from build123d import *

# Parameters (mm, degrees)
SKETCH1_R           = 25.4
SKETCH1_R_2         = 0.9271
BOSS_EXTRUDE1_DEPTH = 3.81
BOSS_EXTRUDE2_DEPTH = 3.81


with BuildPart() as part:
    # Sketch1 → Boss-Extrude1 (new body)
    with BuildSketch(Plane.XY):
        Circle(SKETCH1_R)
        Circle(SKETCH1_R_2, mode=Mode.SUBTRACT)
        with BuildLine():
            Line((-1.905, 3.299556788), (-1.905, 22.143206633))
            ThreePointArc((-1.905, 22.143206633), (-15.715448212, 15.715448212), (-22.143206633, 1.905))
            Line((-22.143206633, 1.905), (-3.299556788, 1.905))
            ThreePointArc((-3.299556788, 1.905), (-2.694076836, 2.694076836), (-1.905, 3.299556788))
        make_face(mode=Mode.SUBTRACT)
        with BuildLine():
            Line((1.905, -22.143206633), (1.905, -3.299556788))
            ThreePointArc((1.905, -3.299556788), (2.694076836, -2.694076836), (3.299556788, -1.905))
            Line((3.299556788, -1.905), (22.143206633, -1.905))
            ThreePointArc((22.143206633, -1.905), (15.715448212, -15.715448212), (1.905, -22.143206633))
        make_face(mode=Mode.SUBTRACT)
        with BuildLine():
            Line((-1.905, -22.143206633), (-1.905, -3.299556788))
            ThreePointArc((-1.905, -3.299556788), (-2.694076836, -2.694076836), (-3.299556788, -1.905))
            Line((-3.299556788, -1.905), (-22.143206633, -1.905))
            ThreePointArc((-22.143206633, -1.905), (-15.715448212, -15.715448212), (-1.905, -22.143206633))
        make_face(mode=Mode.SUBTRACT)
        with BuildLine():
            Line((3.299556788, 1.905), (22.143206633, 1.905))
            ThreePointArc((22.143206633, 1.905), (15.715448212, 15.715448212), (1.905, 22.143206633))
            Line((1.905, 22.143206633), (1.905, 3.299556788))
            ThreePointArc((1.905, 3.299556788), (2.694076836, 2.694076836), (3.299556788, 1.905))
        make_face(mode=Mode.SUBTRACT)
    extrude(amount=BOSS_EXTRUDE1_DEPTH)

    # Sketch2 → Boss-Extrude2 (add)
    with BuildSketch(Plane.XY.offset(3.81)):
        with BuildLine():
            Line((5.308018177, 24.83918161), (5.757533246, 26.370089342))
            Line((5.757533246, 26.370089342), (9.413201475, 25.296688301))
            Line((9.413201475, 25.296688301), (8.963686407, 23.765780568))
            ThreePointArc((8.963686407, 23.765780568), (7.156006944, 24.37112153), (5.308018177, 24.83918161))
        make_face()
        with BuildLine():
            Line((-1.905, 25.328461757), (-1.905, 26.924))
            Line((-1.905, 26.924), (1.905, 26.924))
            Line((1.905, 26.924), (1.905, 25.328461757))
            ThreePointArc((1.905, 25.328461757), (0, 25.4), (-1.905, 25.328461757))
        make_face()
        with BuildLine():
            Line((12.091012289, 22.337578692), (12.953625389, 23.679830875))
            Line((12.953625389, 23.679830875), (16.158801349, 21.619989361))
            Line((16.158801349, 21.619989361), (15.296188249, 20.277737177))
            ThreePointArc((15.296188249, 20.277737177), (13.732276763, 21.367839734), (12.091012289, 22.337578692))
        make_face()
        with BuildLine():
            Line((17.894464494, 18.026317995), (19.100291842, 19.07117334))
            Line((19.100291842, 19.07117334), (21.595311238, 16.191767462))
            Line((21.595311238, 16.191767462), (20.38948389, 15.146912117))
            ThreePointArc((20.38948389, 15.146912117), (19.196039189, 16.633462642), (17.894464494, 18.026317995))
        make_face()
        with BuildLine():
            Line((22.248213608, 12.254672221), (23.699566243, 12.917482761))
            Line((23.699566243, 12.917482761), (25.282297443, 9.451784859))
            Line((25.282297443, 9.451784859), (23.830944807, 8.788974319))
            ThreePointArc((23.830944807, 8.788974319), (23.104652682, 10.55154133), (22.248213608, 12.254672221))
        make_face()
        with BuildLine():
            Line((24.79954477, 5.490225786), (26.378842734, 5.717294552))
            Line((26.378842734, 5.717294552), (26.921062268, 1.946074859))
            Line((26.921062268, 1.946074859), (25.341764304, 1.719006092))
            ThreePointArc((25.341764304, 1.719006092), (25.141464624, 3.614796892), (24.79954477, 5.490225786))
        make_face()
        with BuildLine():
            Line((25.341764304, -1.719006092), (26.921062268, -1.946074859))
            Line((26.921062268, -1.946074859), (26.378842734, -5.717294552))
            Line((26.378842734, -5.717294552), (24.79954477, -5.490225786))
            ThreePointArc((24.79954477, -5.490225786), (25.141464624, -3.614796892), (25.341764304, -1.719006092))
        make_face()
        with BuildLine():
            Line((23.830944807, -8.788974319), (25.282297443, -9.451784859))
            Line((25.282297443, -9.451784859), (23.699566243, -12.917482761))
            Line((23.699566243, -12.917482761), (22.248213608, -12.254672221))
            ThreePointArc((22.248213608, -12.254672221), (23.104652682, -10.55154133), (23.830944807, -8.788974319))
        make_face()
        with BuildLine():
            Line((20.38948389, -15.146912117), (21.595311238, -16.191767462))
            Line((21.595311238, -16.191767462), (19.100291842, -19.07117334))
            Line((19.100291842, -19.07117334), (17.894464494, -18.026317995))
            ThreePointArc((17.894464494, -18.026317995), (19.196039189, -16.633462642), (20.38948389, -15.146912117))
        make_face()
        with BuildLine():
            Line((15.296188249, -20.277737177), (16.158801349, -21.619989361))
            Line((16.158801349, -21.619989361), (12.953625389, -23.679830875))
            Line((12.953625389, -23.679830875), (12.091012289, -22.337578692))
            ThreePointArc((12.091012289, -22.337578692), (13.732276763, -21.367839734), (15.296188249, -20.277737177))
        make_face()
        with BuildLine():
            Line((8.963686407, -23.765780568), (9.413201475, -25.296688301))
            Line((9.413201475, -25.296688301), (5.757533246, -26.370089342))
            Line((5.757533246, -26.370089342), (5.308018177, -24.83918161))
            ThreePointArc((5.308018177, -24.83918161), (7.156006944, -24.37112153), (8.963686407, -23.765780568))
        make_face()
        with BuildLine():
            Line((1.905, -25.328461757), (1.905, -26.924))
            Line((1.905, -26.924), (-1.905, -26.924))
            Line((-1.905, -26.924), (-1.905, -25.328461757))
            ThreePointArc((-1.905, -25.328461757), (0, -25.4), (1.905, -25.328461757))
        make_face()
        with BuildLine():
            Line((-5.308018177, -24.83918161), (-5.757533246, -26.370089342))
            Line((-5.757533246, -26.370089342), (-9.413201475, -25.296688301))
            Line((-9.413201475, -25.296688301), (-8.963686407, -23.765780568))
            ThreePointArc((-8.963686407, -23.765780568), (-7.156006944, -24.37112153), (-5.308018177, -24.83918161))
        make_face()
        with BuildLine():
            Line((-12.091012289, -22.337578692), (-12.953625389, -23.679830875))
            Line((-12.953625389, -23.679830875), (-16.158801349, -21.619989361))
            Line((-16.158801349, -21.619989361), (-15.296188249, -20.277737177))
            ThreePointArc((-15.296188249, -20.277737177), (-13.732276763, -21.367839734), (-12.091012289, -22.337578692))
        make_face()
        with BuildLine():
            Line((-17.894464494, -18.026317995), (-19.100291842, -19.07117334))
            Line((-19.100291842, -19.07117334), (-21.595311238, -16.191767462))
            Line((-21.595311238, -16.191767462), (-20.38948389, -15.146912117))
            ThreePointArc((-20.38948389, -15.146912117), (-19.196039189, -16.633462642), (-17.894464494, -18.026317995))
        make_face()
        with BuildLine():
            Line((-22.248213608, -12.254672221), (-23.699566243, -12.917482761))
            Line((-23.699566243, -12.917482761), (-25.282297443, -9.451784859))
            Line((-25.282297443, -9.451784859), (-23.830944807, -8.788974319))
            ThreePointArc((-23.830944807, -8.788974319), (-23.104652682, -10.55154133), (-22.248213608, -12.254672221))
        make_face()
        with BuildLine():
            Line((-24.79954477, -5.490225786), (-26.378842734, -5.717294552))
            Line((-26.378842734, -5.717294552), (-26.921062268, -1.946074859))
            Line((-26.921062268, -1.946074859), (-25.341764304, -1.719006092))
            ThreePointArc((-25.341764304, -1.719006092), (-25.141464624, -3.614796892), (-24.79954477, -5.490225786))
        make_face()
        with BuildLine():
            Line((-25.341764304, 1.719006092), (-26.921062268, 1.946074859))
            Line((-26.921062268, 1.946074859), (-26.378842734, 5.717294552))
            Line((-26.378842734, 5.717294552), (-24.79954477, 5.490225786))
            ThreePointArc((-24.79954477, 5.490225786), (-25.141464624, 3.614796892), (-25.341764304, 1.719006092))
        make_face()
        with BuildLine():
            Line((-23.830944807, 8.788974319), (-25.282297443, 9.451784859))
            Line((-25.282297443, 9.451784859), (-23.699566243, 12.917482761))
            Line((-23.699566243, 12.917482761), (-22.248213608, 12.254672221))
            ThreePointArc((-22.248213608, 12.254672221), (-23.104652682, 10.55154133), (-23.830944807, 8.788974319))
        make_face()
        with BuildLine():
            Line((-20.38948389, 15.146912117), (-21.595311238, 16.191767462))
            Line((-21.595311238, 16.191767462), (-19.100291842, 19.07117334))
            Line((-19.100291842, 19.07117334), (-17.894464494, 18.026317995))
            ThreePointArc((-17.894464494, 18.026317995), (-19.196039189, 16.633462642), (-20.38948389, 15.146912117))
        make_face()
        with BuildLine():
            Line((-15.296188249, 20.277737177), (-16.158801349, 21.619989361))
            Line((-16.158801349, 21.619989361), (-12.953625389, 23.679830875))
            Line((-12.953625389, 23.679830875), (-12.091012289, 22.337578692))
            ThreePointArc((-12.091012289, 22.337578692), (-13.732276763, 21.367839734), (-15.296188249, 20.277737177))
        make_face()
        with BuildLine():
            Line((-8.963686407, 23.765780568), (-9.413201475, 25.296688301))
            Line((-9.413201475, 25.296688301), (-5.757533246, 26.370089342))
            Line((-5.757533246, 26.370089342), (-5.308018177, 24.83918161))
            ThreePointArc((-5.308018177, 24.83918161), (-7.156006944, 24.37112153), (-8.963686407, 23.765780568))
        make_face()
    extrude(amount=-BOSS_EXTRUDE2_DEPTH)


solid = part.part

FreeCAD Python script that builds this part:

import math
import FreeCAD as App
import Part
import Sketcher
Q = App.Units.Quantity

doc = App.newDocument("Part")
body = doc.addObject("PartDesign::Body", "Body")

# Sketch on XY plane
sketch1 = body.newObject("Sketcher::SketchObject", "Sketch")
sketch1.AttachmentSupport = (doc.getObject("XY_Plane"), [""])
sketch1.MapMode = "FlatFace"
sketch1.addGeometry([
    Part.Circle(App.Vector(0, 0, 0), App.Vector(0, 0, 1), 25.4),  # 0
    Part.LineSegment(App.Vector(-1.9, -3.3, 0), App.Vector(-1.9, -22.1, 0)),  # 1
    Part.ArcOfCircle(Part.Circle(App.Vector(0, 0, 0), App.Vector(0, 0, 1), 22.2), math.radians(-175), math.radians(-95)),  # 2
    Part.LineSegment(App.Vector(-22.1, -1.9, 0), App.Vector(-3.3, -1.9, 0)),  # 3
    Part.ArcOfCircle(Part.Circle(App.Vector(0, 0, 0), App.Vector(0, 0, 1), 3.8), math.radians(-150), math.radians(-120)),  # 4
    Part.Circle(App.Vector(0, 0, 0), App.Vector(0, 0, 1), 0.9),  # 5
    Part.ArcOfCircle(Part.Circle(App.Vector(0, 0, 0), App.Vector(0, 0, 1), 22.2), math.radians(-85), math.radians(-5)),  # 6
    Part.LineSegment(App.Vector(1.9, -22.1, 0), App.Vector(1.9, -3.3, 0)),  # 7
    Part.ArcOfCircle(Part.Circle(App.Vector(0, 0, 0), App.Vector(0, 0, 1), 3.8), math.radians(-60), math.radians(-30)),  # 8
    Part.LineSegment(App.Vector(3.3, -1.9, 0), App.Vector(22.1, -1.9, 0)),  # 9
    Part.LineSegment(App.Vector(-1.9, 22.1, 0), App.Vector(-1.9, 3.3, 0)),  # 10
    Part.ArcOfCircle(Part.Circle(App.Vector(0, 0, 0), App.Vector(0, 0, 1), 3.8), math.radians(120), math.radians(150)),  # 11
    Part.LineSegment(App.Vector(-3.3, 1.9, 0), App.Vector(-22.1, 1.9, 0)),  # 12
    Part.ArcOfCircle(Part.Circle(App.Vector(0, 0, 0), App.Vector(0, 0, 1), 22.2), math.radians(95), math.radians(175)),  # 13
    Part.LineSegment(App.Vector(22.1, 1.9, 0), App.Vector(3.3, 1.9, 0)),  # 14
    Part.ArcOfCircle(Part.Circle(App.Vector(0, 0, 0), App.Vector(0, 0, 1), 3.8), math.radians(30), math.radians(60)),  # 15
    Part.LineSegment(App.Vector(1.9, 3.3, 0), App.Vector(1.9, 22.1, 0)),  # 16
    Part.ArcOfCircle(Part.Circle(App.Vector(0, 0, 0), App.Vector(0, 0, 1), 22.2), math.radians(5), math.radians(85)),  # 17
], False)
sketch1.addConstraint([
    Sketcher.Constraint("Coincident", 1, 2, 2, 2),
    Sketcher.Constraint("Coincident", 2, 1, 3, 1),
    Sketcher.Constraint("Coincident", 3, 2, 4, 1),
    Sketcher.Constraint("Coincident", 4, 2, 1, 1),
    Sketcher.Constraint("Coincident", 6, 1, 7, 1),
    Sketcher.Constraint("Coincident", 7, 2, 8, 1),
    Sketcher.Constraint("Coincident", 8, 2, 9, 1),
    Sketcher.Constraint("Coincident", 9, 2, 6, 2),
    Sketcher.Constraint("Coincident", 10, 2, 11, 1),
    Sketcher.Constraint("Coincident", 11, 2, 12, 1),
    Sketcher.Constraint("Coincident", 12, 2, 13, 2),
    Sketcher.Constraint("Coincident", 13, 1, 10, 1),
    Sketcher.Constraint("Coincident", 14, 2, 15, 1),
    Sketcher.Constraint("Coincident", 15, 2, 16, 1),
    Sketcher.Constraint("Coincident", 16, 2, 17, 2),
    Sketcher.Constraint("Coincident", 17, 1, 14, 1),
    Sketcher.Constraint("Vertical", 1),
    Sketcher.Constraint("Horizontal", 3),
    Sketcher.Constraint("Vertical", 7),
    Sketcher.Constraint("Horizontal", 9),
    Sketcher.Constraint("Vertical", 10),
    Sketcher.Constraint("Horizontal", 12),
    Sketcher.Constraint("Horizontal", 14),
    Sketcher.Constraint("Vertical", 16),
    Sketcher.Constraint("Coincident", 0, 3, -1, 1),
    Sketcher.Constraint("Coincident", 2, 3, -1, 1),
    Sketcher.Constraint("Coincident", 4, 3, -1, 1),
    Sketcher.Constraint("Coincident", 5, 3, -1, 1),
    Sketcher.Constraint("Coincident", 6, 3, -1, 1),
    Sketcher.Constraint("Coincident", 8, 3, -1, 1),
    Sketcher.Constraint("Coincident", 11, 3, -1, 1),
    Sketcher.Constraint("Coincident", 13, 3, -1, 1),
    Sketcher.Constraint("Coincident", 15, 3, -1, 1),
    Sketcher.Constraint("Coincident", 17, 3, -1, 1),
    Sketcher.Constraint("Equal", 2, 6),
    Sketcher.Constraint("Equal", 4, 8),
    Sketcher.Constraint("Equal", 8, 11),
    Sketcher.Constraint("Equal", 6, 13),
    Sketcher.Constraint("Equal", 11, 15),
    Sketcher.Constraint("Equal", 13, 17),
    Sketcher.Constraint("Horizontal", 1, 2, 6, 1),
    Sketcher.Constraint("Horizontal", 3, 2, 8, 2),
    Sketcher.Constraint("Horizontal", 12, 2, 14, 2),
    Sketcher.Constraint("Horizontal", 10, 2, 15, 2),
    Sketcher.Constraint("Vertical", 4, 2, 10, 2),
    Sketcher.Constraint("Vertical", 3, 2, 11, 2),
    Sketcher.Constraint("Equal", 14, 1),
    Sketcher.Constraint("Diameter", 0, Q("2 in")),
    Sketcher.Constraint("Radius", 4, Q("0.15 in")),
    Sketcher.Constraint("Diameter", 5, Q("0.073 in")),
    Sketcher.Constraint("Radius", 2, Q("0.875 in")),
    Sketcher.Constraint("DistanceX", 1, 2, 6, 1, Q("0.15 in")),
])
pad1 = body.newObject("PartDesign::Pad", "Pad")
pad1.Profile = sketch1
pad1.Length = Q("0.15 in")

# Sketch on XY plane
sketch2 = body.newObject("Sketcher::SketchObject", "Sketch001")
sketch2.AttachmentSupport = (doc.getObject("XY_Plane"), [""])
sketch2.MapMode = "FlatFace"
sketch2.AttachmentOffset = App.Placement(App.Vector(0, 0, 0.15 * 25.4), App.Rotation())
sketch2.addGeometry([
    Part.LineSegment(App.Vector(5.8, 26.4, 0), App.Vector(5.3, 24.8, 0)),  # 0
    Part.ArcOfCircle(Part.Circle(App.Vector(0, 0, 0), App.Vector(0, 0, 1), 25.4), math.radians(69.34), math.radians(77.94)),  # 1
    Part.LineSegment(App.Vector(9, 23.8, 0), App.Vector(9.4, 25.3, 0)),  # 2
    Part.LineSegment(App.Vector(9.4, 25.3, 0), App.Vector(5.8, 26.4, 0)),  # 3
    Part.LineSegment(App.Vector(-1.9, 26.9, 0), App.Vector(-1.9, 25.3, 0)),  # 4
    Part.ArcOfCircle(Part.Circle(App.Vector(0, 0, 0), App.Vector(0, 0, 1), 25.4), math.radians(85.7), math.radians(94.3)),  # 5
    Part.LineSegment(App.Vector(1.9, 25.3, 0), App.Vector(1.9, 26.9, 0)),  # 6
    Part.LineSegment(App.Vector(1.9, 26.9, 0), App.Vector(-1.9, 26.9, 0)),  # 7
    Part.LineSegment(App.Vector(13, 23.7, 0), App.Vector(12.1, 22.3, 0)),  # 8
    Part.ArcOfCircle(Part.Circle(App.Vector(0, 0, 0), App.Vector(0, 0, 1), 25.4), math.radians(52.97), math.radians(61.57)),  # 9
    Part.LineSegment(App.Vector(15.3, 20.3, 0), App.Vector(16.2, 21.6, 0)),  # 10
    Part.LineSegment(App.Vector(16.2, 21.6, 0), App.Vector(13, 23.7, 0)),  # 11
    Part.LineSegment(App.Vector(19.1, 19.1, 0), App.Vector(17.9, 18, 0)),  # 12
    Part.ArcOfCircle(Part.Circle(App.Vector(0, 0, 0), App.Vector(0, 0, 1), 25.4), math.radians(36.61), math.radians(45.21)),  # 13
    Part.LineSegment(App.Vector(20.4, 15.1, 0), App.Vector(21.6, 16.2, 0)),  # 14
    Part.LineSegment(App.Vector(21.6, 16.2, 0), App.Vector(19.1, 19.1, 0)),  # 15
    Part.LineSegment(App.Vector(23.7, 12.9, 0), App.Vector(22.2, 12.3, 0)),  # 16
    Part.ArcOfCircle(Part.Circle(App.Vector(0, 0, 0), App.Vector(0, 0, 1), 25.4), math.radians(20.24), math.radians(28.85)),  # 17
    Part.LineSegment(App.Vector(23.8, 8.8, 0), App.Vector(25.3, 9.5, 0)),  # 18
    Part.LineSegment(App.Vector(25.3, 9.5, 0), App.Vector(23.7, 12.9, 0)),  # 19
    Part.LineSegment(App.Vector(26.4, 5.7, 0), App.Vector(24.8, 5.5, 0)),  # 20
    Part.ArcOfCircle(Part.Circle(App.Vector(0, 0, 0), App.Vector(0, 0, 1), 25.4), math.radians(3.88), math.radians(12.48)),  # 21
    Part.LineSegment(App.Vector(25.3, 1.7, 0), App.Vector(26.9, 1.9, 0)),  # 22
    Part.LineSegment(App.Vector(26.9, 1.9, 0), App.Vector(26.4, 5.7, 0)),  # 23
    Part.LineSegment(App.Vector(26.9, -1.9, 0), App.Vector(25.3, -1.7, 0)),  # 24
    Part.ArcOfCircle(Part.Circle(App.Vector(0, 0, 0), App.Vector(0, 0, 1), 25.4), math.radians(-12.48), math.radians(-3.88)),  # 25
    Part.LineSegment(App.Vector(24.8, -5.5, 0), App.Vector(26.4, -5.7, 0)),  # 26
    Part.LineSegment(App.Vector(26.4, -5.7, 0), App.Vector(26.9, -1.9, 0)),  # 27
    Part.LineSegment(App.Vector(25.3, -9.5, 0), App.Vector(23.8, -8.8, 0)),  # 28
    Part.ArcOfCircle(Part.Circle(App.Vector(0, 0, 0), App.Vector(0, 0, 1), 25.4), math.radians(-28.85), math.radians(-20.24)),  # 29
    Part.LineSegment(App.Vector(22.2, -12.3, 0), App.Vector(23.7, -12.9, 0)),  # 30
    Part.LineSegment(App.Vector(23.7, -12.9, 0), App.Vector(25.3, -9.5, 0)),  # 31
    Part.LineSegment(App.Vector(21.6, -16.2, 0), App.Vector(20.4, -15.1, 0)),  # 32
    Part.ArcOfCircle(Part.Circle(App.Vector(0, 0, 0), App.Vector(0, 0, 1), 25.4), math.radians(-45.21), math.radians(-36.61)),  # 33
    Part.LineSegment(App.Vector(17.9, -18, 0), App.Vector(19.1, -19.1, 0)),  # 34
    Part.LineSegment(App.Vector(19.1, -19.1, 0), App.Vector(21.6, -16.2, 0)),  # 35
    Part.LineSegment(App.Vector(16.2, -21.6, 0), App.Vector(15.3, -20.3, 0)),  # 36
    Part.ArcOfCircle(Part.Circle(App.Vector(0, 0, 0), App.Vector(0, 0, 1), 25.4), math.radians(-61.57), math.radians(-52.97)),  # 37
    Part.LineSegment(App.Vector(12.1, -22.3, 0), App.Vector(13, -23.7, 0)),  # 38
    Part.LineSegment(App.Vector(13, -23.7, 0), App.Vector(16.2, -21.6, 0)),  # 39
    Part.LineSegment(App.Vector(9.4, -25.3, 0), App.Vector(9, -23.8, 0)),  # 40
    Part.ArcOfCircle(Part.Circle(App.Vector(0, 0, 0), App.Vector(0, 0, 1), 25.4), math.radians(-77.94), math.radians(-69.34)),  # 41
    Part.LineSegment(App.Vector(5.3, -24.8, 0), App.Vector(5.8, -26.4, 0)),  # 42
    Part.LineSegment(App.Vector(5.8, -26.4, 0), App.Vector(9.4, -25.3, 0)),  # 43
    Part.LineSegment(App.Vector(1.9, -26.9, 0), App.Vector(1.9, -25.3, 0)),  # 44
    Part.ArcOfCircle(Part.Circle(App.Vector(0, 0, 0), App.Vector(0, 0, 1), 25.4), math.radians(-94.3), math.radians(-85.7)),  # 45
    Part.LineSegment(App.Vector(-1.9, -25.3, 0), App.Vector(-1.9, -26.9, 0)),  # 46
    Part.LineSegment(App.Vector(-1.9, -26.9, 0), App.Vector(1.9, -26.9, 0)),  # 47
    Part.LineSegment(App.Vector(-5.8, -26.4, 0), App.Vector(-5.3, -24.8, 0)),  # 48
    Part.ArcOfCircle(Part.Circle(App.Vector(0, 0, 0), App.Vector(0, 0, 1), 25.4), math.radians(-110.66), math.radians(-102.06)),  # 49
    Part.LineSegment(App.Vector(-9, -23.8, 0), App.Vector(-9.4, -25.3, 0)),  # 50
    Part.LineSegment(App.Vector(-9.4, -25.3, 0), App.Vector(-5.8, -26.4, 0)),  # 51
    Part.LineSegment(App.Vector(-13, -23.7, 0), App.Vector(-12.1, -22.3, 0)),  # 52
    Part.ArcOfCircle(Part.Circle(App.Vector(0, 0, 0), App.Vector(0, 0, 1), 25.4), math.radians(-127.03), math.radians(-118.43)),  # 53
    Part.LineSegment(App.Vector(-15.3, -20.3, 0), App.Vector(-16.2, -21.6, 0)),  # 54
    Part.LineSegment(App.Vector(-16.2, -21.6, 0), App.Vector(-13, -23.7, 0)),  # 55
    Part.LineSegment(App.Vector(-19.1, -19.1, 0), App.Vector(-17.9, -18, 0)),  # 56
    Part.ArcOfCircle(Part.Circle(App.Vector(0, 0, 0), App.Vector(0, 0, 1), 25.4), math.radians(-143.39), math.radians(-134.79)),  # 57
    Part.LineSegment(App.Vector(-20.4, -15.1, 0), App.Vector(-21.6, -16.2, 0)),  # 58
    Part.LineSegment(App.Vector(-21.6, -16.2, 0), App.Vector(-19.1, -19.1, 0)),  # 59
    Part.LineSegment(App.Vector(-23.7, -12.9, 0), App.Vector(-22.2, -12.3, 0)),  # 60
    Part.ArcOfCircle(Part.Circle(App.Vector(0, 0, 0), App.Vector(0, 0, 1), 25.4), math.radians(-159.76), math.radians(-151.15)),  # 61
    Part.LineSegment(App.Vector(-23.8, -8.8, 0), App.Vector(-25.3, -9.5, 0)),  # 62
    Part.LineSegment(App.Vector(-25.3, -9.5, 0), App.Vector(-23.7, -12.9, 0)),  # 63
    Part.LineSegment(App.Vector(-26.4, -5.7, 0), App.Vector(-24.8, -5.5, 0)),  # 64
    Part.ArcOfCircle(Part.Circle(App.Vector(0, 0, 0), App.Vector(0, 0, 1), 25.4), math.radians(-176.12), math.radians(-167.52)),  # 65
    Part.LineSegment(App.Vector(-25.3, -1.7, 0), App.Vector(-26.9, -1.9, 0)),  # 66
    Part.LineSegment(App.Vector(-26.9, -1.9, 0), App.Vector(-26.4, -5.7, 0)),  # 67
    Part.LineSegment(App.Vector(-26.9, 1.9, 0), App.Vector(-25.3, 1.7, 0)),  # 68
    Part.ArcOfCircle(Part.Circle(App.Vector(0, 0, 0), App.Vector(0, 0, 1), 25.4), math.radians(167.52), math.radians(176.12)),  # 69
    Part.LineSegment(App.Vector(-24.8, 5.5, 0), App.Vector(-26.4, 5.7, 0)),  # 70
    Part.LineSegment(App.Vector(-26.4, 5.7, 0), App.Vector(-26.9, 1.9, 0)),  # 71
    Part.LineSegment(App.Vector(-25.3, 9.5, 0), App.Vector(-23.8, 8.8, 0)),  # 72
    Part.ArcOfCircle(Part.Circle(App.Vector(0, 0, 0), App.Vector(0, 0, 1), 25.4), math.radians(151.15), math.radians(159.76)),  # 73
    Part.LineSegment(App.Vector(-22.2, 12.3, 0), App.Vector(-23.7, 12.9, 0)),  # 74
    Part.LineSegment(App.Vector(-23.7, 12.9, 0), App.Vector(-25.3, 9.5, 0)),  # 75
    Part.LineSegment(App.Vector(-21.6, 16.2, 0), App.Vector(-20.4, 15.1, 0)),  # 76
    Part.ArcOfCircle(Part.Circle(App.Vector(0, 0, 0), App.Vector(0, 0, 1), 25.4), math.radians(134.79), math.radians(143.39)),  # 77
    Part.LineSegment(App.Vector(-17.9, 18, 0), App.Vector(-19.1, 19.1, 0)),  # 78
    Part.LineSegment(App.Vector(-19.1, 19.1, 0), App.Vector(-21.6, 16.2, 0)),  # 79
    Part.LineSegment(App.Vector(-16.2, 21.6, 0), App.Vector(-15.3, 20.3, 0)),  # 80
    Part.ArcOfCircle(Part.Circle(App.Vector(0, 0, 0), App.Vector(0, 0, 1), 25.4), math.radians(118.43), math.radians(127.03)),  # 81
    Part.LineSegment(App.Vector(-12.1, 22.3, 0), App.Vector(-13, 23.7, 0)),  # 82
    Part.LineSegment(App.Vector(-13, 23.7, 0), App.Vector(-16.2, 21.6, 0)),  # 83
    Part.LineSegment(App.Vector(-9.4, 25.3, 0), App.Vector(-9, 23.8, 0)),  # 84
    Part.ArcOfCircle(Part.Circle(App.Vector(0, 0, 0), App.Vector(0, 0, 1), 25.4), math.radians(102.06), math.radians(110.66)),  # 85
    Part.LineSegment(App.Vector(-5.3, 24.8, 0), App.Vector(-5.8, 26.4, 0)),  # 86
    Part.LineSegment(App.Vector(-5.8, 26.4, 0), App.Vector(-9.4, 25.3, 0)),  # 87
], False)
sketch2.addConstraint([
    Sketcher.Constraint("Coincident", 0, 2, 1, 2),
    Sketcher.Constraint("Coincident", 1, 1, 2, 1),
    Sketcher.Constraint("Coincident", 2, 2, 3, 1),
    Sketcher.Constraint("Coincident", 3, 2, 0, 1),
    Sketcher.Constraint("Coincident", 4, 2, 5, 2),
    Sketcher.Constraint("Coincident", 5, 1, 6, 1),
    Sketcher.Constraint("Coincident", 6, 2, 7, 1),
    Sketcher.Constraint("Coincident", 7, 2, 4, 1),
    Sketcher.Constraint("Coincident", 8, 2, 9, 2),
    Sketcher.Constraint("Coincident", 9, 1, 10, 1),
    Sketcher.Constraint("Coincident", 10, 2, 11, 1),
    Sketcher.Constraint("Coincident", 11, 2, 8, 1),
    Sketcher.Constraint("Coincident", 12, 2, 13, 2),
    Sketcher.Constraint("Coincident", 13, 1, 14, 1),
    Sketcher.Constraint("Coincident", 14, 2, 15, 1),
    Sketcher.Constraint("Coincident", 15, 2, 12, 1),
    Sketcher.Constraint("Coincident", 16, 2, 17, 2),
    Sketcher.Constraint("Coincident", 17, 1, 18, 1),
    Sketcher.Constraint("Coincident", 18, 2, 19, 1),
    Sketcher.Constraint("Coincident", 19, 2, 16, 1),
    Sketcher.Constraint("Coincident", 20, 2, 21, 2),
    Sketcher.Constraint("Coincident", 21, 1, 22, 1),
    Sketcher.Constraint("Coincident", 22, 2, 23, 1),
    Sketcher.Constraint("Coincident", 23, 2, 20, 1),
    Sketcher.Constraint("Coincident", 24, 2, 25, 2),
    Sketcher.Constraint("Coincident", 25, 1, 26, 1),
    Sketcher.Constraint("Coincident", 26, 2, 27, 1),
    Sketcher.Constraint("Coincident", 27, 2, 24, 1),
    Sketcher.Constraint("Coincident", 28, 2, 29, 2),
    Sketcher.Constraint("Coincident", 29, 1, 30, 1),
    Sketcher.Constraint("Coincident", 30, 2, 31, 1),
    Sketcher.Constraint("Coincident", 31, 2, 28, 1),
    Sketcher.Constraint("Coincident", 32, 2, 33, 2),
    Sketcher.Constraint("Coincident", 33, 1, 34, 1),
    Sketcher.Constraint("Coincident", 34, 2, 35, 1),
    Sketcher.Constraint("Coincident", 35, 2, 32, 1),
    Sketcher.Constraint("Coincident", 36, 2, 37, 2),
    Sketcher.Constraint("Coincident", 37, 1, 38, 1),
    Sketcher.Constraint("Coincident", 38, 2, 39, 1),
    Sketcher.Constraint("Coincident", 39, 2, 36, 1),
    Sketcher.Constraint("Coincident", 40, 2, 41, 2),
    Sketcher.Constraint("Coincident", 41, 1, 42, 1),
    Sketcher.Constraint("Coincident", 42, 2, 43, 1),
    Sketcher.Constraint("Coincident", 43, 2, 40, 1),
    Sketcher.Constraint("Coincident", 44, 2, 45, 2),
    Sketcher.Constraint("Coincident", 45, 1, 46, 1),
    Sketcher.Constraint("Coincident", 46, 2, 47, 1),
    Sketcher.Constraint("Coincident", 47, 2, 44, 1),
    Sketcher.Constraint("Coincident", 48, 2, 49, 2),
    Sketcher.Constraint("Coincident", 49, 1, 50, 1),
    Sketcher.Constraint("Coincident", 50, 2, 51, 1),
    Sketcher.Constraint("Coincident", 51, 2, 48, 1),
    Sketcher.Constraint("Coincident", 52, 2, 53, 2),
    Sketcher.Constraint("Coincident", 53, 1, 54, 1),
    Sketcher.Constraint("Coincident", 54, 2, 55, 1),
    Sketcher.Constraint("Coincident", 55, 2, 52, 1),
    Sketcher.Constraint("Coincident", 56, 2, 57, 2),
    Sketcher.Constraint("Coincident", 57, 1, 58, 1),
    Sketcher.Constraint("Coincident", 58, 2, 59, 1),
    Sketcher.Constraint("Coincident", 59, 2, 56, 1),
    Sketcher.Constraint("Coincident", 60, 2, 61, 2),
    Sketcher.Constraint("Coincident", 61, 1, 62, 1),
    Sketcher.Constraint("Coincident", 62, 2, 63, 1),
    Sketcher.Constraint("Coincident", 63, 2, 60, 1),
    Sketcher.Constraint("Coincident", 64, 2, 65, 2),
    Sketcher.Constraint("Coincident", 65, 1, 66, 1),
    Sketcher.Constraint("Coincident", 66, 2, 67, 1),
    Sketcher.Constraint("Coincident", 67, 2, 64, 1),
    Sketcher.Constraint("Coincident", 68, 2, 69, 2),
    Sketcher.Constraint("Coincident", 69, 1, 70, 1),
    Sketcher.Constraint("Coincident", 70, 2, 71, 1),
    Sketcher.Constraint("Coincident", 71, 2, 68, 1),
    Sketcher.Constraint("Coincident", 72, 2, 73, 2),
    Sketcher.Constraint("Coincident", 73, 1, 74, 1),
    Sketcher.Constraint("Coincident", 74, 2, 75, 1),
    Sketcher.Constraint("Coincident", 75, 2, 72, 1),
    Sketcher.Constraint("Coincident", 76, 2, 77, 2),
    Sketcher.Constraint("Coincident", 77, 1, 78, 1),
    Sketcher.Constraint("Coincident", 78, 2, 79, 1),
    Sketcher.Constraint("Coincident", 79, 2, 76, 1),
    Sketcher.Constraint("Coincident", 80, 2, 81, 2),
    Sketcher.Constraint("Coincident", 81, 1, 82, 1),
    Sketcher.Constraint("Coincident", 82, 2, 83, 1),
    Sketcher.Constraint("Coincident", 83, 2, 80, 1),
    Sketcher.Constraint("Coincident", 84, 2, 85, 2),
    Sketcher.Constraint("Coincident", 85, 1, 86, 1),
    Sketcher.Constraint("Coincident", 86, 2, 87, 1),
    Sketcher.Constraint("Coincident", 87, 2, 84, 1),
    Sketcher.Constraint("Vertical", 4),
    Sketcher.Constraint("Vertical", 6),
    Sketcher.Constraint("Horizontal", 7),
    Sketcher.Constraint("Vertical", 44),
    Sketcher.Constraint("Vertical", 46),
    Sketcher.Constraint("Horizontal", 47),
    Sketcher.Constraint("Coincident", 1, 3, -1, 1),
    Sketcher.Constraint("Coincident", 5, 3, -1, 1),
    Sketcher.Constraint("Coincident", 9, 3, -1, 1),
    Sketcher.Constraint("Coincident", 13, 3, -1, 1),
    Sketcher.Constraint("Coincident", 17, 3, -1, 1),
    Sketcher.Constraint("Coincident", 21, 3, -1, 1),
    Sketcher.Constraint("Coincident", 25, 3, -1, 1),
    Sketcher.Constraint("Coincident", 29, 3, -1, 1),
    Sketcher.Constraint("Coincident", 33, 3, -1, 1),
    Sketcher.Constraint("Coincident", 37, 3, -1, 1),
    Sketcher.Constraint("Coincident", 41, 3, -1, 1),
    Sketcher.Constraint("Coincident", 45, 3, -1, 1),
    Sketcher.Constraint("Coincident", 49, 3, -1, 1),
    Sketcher.Constraint("Coincident", 53, 3, -1, 1),
    Sketcher.Constraint("Coincident", 57, 3, -1, 1),
    Sketcher.Constraint("Coincident", 61, 3, -1, 1),
    Sketcher.Constraint("Coincident", 65, 3, -1, 1),
    Sketcher.Constraint("Coincident", 69, 3, -1, 1),
    Sketcher.Constraint("Coincident", 73, 3, -1, 1),
    Sketcher.Constraint("Coincident", 77, 3, -1, 1),
    Sketcher.Constraint("Coincident", 81, 3, -1, 1),
    Sketcher.Constraint("Coincident", 85, 3, -1, 1),
    Sketcher.Constraint("Equal", 1, 5),
    Sketcher.Constraint("Equal", 5, 9),
    Sketcher.Constraint("Equal", 9, 13),
    Sketcher.Constraint("Equal", 13, 17),
    Sketcher.Constraint("Equal", 17, 21),
    Sketcher.Constraint("Equal", 21, 25),
    Sketcher.Constraint("Equal", 25, 29),
    Sketcher.Constraint("Equal", 29, 33),
    Sketcher.Constraint("Equal", 33, 37),
    Sketcher.Constraint("Equal", 37, 41),
    Sketcher.Constraint("Equal", 41, 45),
    Sketcher.Constraint("Equal", 45, 49),
    Sketcher.Constraint("Equal", 49, 53),
    Sketcher.Constraint("Equal", 53, 57),
    Sketcher.Constraint("Equal", 57, 61),
    Sketcher.Constraint("Equal", 61, 65),
    Sketcher.Constraint("Equal", 65, 69),
    Sketcher.Constraint("Equal", 69, 73),
    Sketcher.Constraint("Equal", 73, 77),
    Sketcher.Constraint("Equal", 77, 81),
    Sketcher.Constraint("Equal", 81, 85),
    Sketcher.Constraint("Symmetric", 6, 2, 46, 2, -1, 1),
    Sketcher.Constraint("Symmetric", 2, 2, 50, 2, -1, 1),
    Sketcher.Constraint("Symmetric", 3, 2, 51, 2, -1, 1),
    Sketcher.Constraint("Symmetric", 10, 2, 54, 2, -1, 1),
    Sketcher.Constraint("Symmetric", 11, 2, 55, 2, -1, 1),
    Sketcher.Constraint("Symmetric", 14, 2, 58, 2, -1, 1),
    Sketcher.Constraint("Symmetric", 15, 2, 59, 2, -1, 1),
    Sketcher.Constraint("Symmetric", 18, 2, 62, 2, -1, 1),
    Sketcher.Constraint("Symmetric", 19, 2, 63, 2, -1, 1),
    Sketcher.Constraint("Symmetric", 22, 2, 66, 2, -1, 1),
    Sketcher.Constraint("Symmetric", 23, 2, 67, 2, -1, 1),
    Sketcher.Constraint("Symmetric", 26, 2, 70, 2, -1, 1),
    Sketcher.Constraint("Symmetric", 27, 2, 71, 2, -1, 1),
    Sketcher.Constraint("Symmetric", 30, 2, 74, 2, -1, 1),
    Sketcher.Constraint("Symmetric", 31, 2, 75, 2, -1, 1),
    Sketcher.Constraint("Symmetric", 34, 2, 78, 2, -1, 1),
    Sketcher.Constraint("Symmetric", 35, 2, 79, 2, -1, 1),
    Sketcher.Constraint("Symmetric", 38, 2, 82, 2, -1, 1),
    Sketcher.Constraint("Symmetric", 39, 2, 83, 2, -1, 1),
    Sketcher.Constraint("Symmetric", 42, 2, 86, 2, -1, 1),
    Sketcher.Constraint("Symmetric", 43, 2, 87, 2, -1, 1),
    Sketcher.Constraint("Symmetric", 43, 2, 50, 2, -2),
    Sketcher.Constraint("Symmetric", 42, 2, 51, 2, -2),
    Sketcher.Constraint("Symmetric", 39, 2, 54, 2, -2),
    Sketcher.Constraint("Symmetric", 38, 2, 55, 2, -2),
    Sketcher.Constraint("Symmetric", 35, 2, 58, 2, -2),
    Sketcher.Constraint("Symmetric", 34, 2, 59, 2, -2),
    Sketcher.Constraint("Symmetric", 31, 2, 62, 2, -2),
    Sketcher.Constraint("Symmetric", 30, 2, 63, 2, -2),
    Sketcher.Constraint("Symmetric", 27, 2, 66, 2, -2),
    Sketcher.Constraint("Symmetric", 26, 2, 67, 2, -2),
    Sketcher.Constraint("Parallel", 0, 2),
    Sketcher.Constraint("Perpendicular", 2, 3),
    Sketcher.Constraint("Parallel", 8, 10),
    Sketcher.Constraint("Perpendicular", 10, 11),
    Sketcher.Constraint("Parallel", 12, 14),
    Sketcher.Constraint("Perpendicular", 14, 15),
    Sketcher.Constraint("Parallel", 16, 18),
    Sketcher.Constraint("Perpendicular", 18, 19),
    Sketcher.Constraint("Parallel", 20, 22),
    Sketcher.Constraint("Perpendicular", 22, 23),
    Sketcher.Constraint("Parallel", 24, 26),
    Sketcher.Constraint("Perpendicular", 26, 27),
    Sketcher.Constraint("Parallel", 28, 30),
    Sketcher.Constraint("Perpendicular", 30, 31),
    Sketcher.Constraint("Parallel", 32, 34),
    Sketcher.Constraint("Perpendicular", 34, 35),
    Sketcher.Constraint("Parallel", 36, 38),
    Sketcher.Constraint("Perpendicular", 38, 39),
    Sketcher.Constraint("Parallel", 40, 42),
    Sketcher.Constraint("Perpendicular", 42, 43),
    Sketcher.Constraint("Perpendicular", 3, 48),
    Sketcher.Constraint("Parallel", 48, 50),
    Sketcher.Constraint("Perpendicular", 11, 52),
    Sketcher.Constraint("Parallel", 52, 54),
    Sketcher.Constraint("Perpendicular", 15, 56),
    Sketcher.Constraint("Parallel", 56, 58),
    Sketcher.Constraint("Perpendicular", 19, 60),
    Sketcher.Constraint("Parallel", 60, 62),
    Sketcher.Constraint("Perpendicular", 23, 64),
    Sketcher.Constraint("Parallel", 64, 66),
    Sketcher.Constraint("Perpendicular", 27, 68),
    Sketcher.Constraint("Parallel", 68, 70),
    Sketcher.Constraint("Perpendicular", 31, 72),
    Sketcher.Constraint("Parallel", 72, 74),
    Sketcher.Constraint("Perpendicular", 35, 76),
    Sketcher.Constraint("Parallel", 76, 78),
    Sketcher.Constraint("Perpendicular", 39, 80),
    Sketcher.Constraint("Parallel", 80, 82),
    Sketcher.Constraint("Perpendicular", 43, 84),
    Sketcher.Constraint("Parallel", 84, 86),
    Sketcher.Constraint("Horizontal", 4, 2, 5, 1),
    Sketcher.Constraint("Horizontal", 44, 2, 45, 1),
    Sketcher.Constraint("Equal", 0, 2),
    Sketcher.Constraint("Equal", 2, 8),
    Sketcher.Constraint("Equal", 8, 10),
    Sketcher.Constraint("Equal", 3, 11),
    Sketcher.Constraint("Equal", 10, 12),
    Sketcher.Constraint("Equal", 12, 14),
    Sketcher.Constraint("Equal", 11, 15),
    Sketcher.Constraint("Equal", 14, 16),
    Sketcher.Constraint("Equal", 16, 18),
    Sketcher.Constraint("Equal", 15, 19),
    Sketcher.Constraint("Equal", 18, 20),
    Sketcher.Constraint("Equal", 20, 22),
    Sketcher.Constraint("Equal", 19, 23),
    Sketcher.Constraint("Radius", 1, Q("1 in")),
    Sketcher.Constraint("DistanceX", 7, 2, 7, 1, Q("0.15 in")),
    Sketcher.Constraint("Distance", 3, Q("0.15 in")),
    Sketcher.Constraint("DistanceY", -1, 1, 6, 2, Q("1.06 in")),
    Sketcher.Constraint("DistanceX", -1, 1, 2, 2, Q("9.413201 mm")),
    Sketcher.Constraint("DistanceX", -1, 1, 10, 2, Q("16.158801 mm")),
    Sketcher.Constraint("Distance", 0, Q("1.595538 mm")),
    Sketcher.Constraint("DistanceX", -1, 1, 14, 2, Q("21.595311 mm")),
    Sketcher.Constraint("DistanceX", -1, 1, 16, 2, Q("22.248214 mm")),
    Sketcher.Constraint("DistanceX", -1, 1, 20, 2, Q("24.799545 mm")),
])
pad2 = body.newObject("PartDesign::Pad", "Pad001")
pad2.Profile = sketch2
pad2.Length = Q("0.15 in")
pad2.Reversed = True

doc.recompute()
